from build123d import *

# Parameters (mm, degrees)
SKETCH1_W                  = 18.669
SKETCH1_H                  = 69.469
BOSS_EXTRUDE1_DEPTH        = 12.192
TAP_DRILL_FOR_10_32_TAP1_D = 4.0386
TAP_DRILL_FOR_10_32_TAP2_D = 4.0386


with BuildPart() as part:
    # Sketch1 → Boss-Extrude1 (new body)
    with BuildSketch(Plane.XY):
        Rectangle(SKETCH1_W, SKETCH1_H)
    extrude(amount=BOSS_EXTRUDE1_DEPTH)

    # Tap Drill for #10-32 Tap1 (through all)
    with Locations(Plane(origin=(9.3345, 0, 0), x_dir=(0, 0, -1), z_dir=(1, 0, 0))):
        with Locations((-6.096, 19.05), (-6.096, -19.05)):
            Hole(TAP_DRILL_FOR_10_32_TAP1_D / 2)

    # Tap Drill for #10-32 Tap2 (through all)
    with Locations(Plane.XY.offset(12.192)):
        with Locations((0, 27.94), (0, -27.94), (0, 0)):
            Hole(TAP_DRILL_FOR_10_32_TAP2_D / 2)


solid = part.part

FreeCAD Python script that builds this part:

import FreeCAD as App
import Part
import Sketcher
Q = App.Units.Quantity


def add_polygon(sketch, points):
    """Adds a closed chain of lines whose ends are joined by coincident constraints."""
    first, n = sketch.GeometryCount, len(points)
    for a, b in zip(points, points[1:] + points[:1]):
        sketch.addGeometry(Part.LineSegment(App.Vector(*a, 0), App.Vector(*b, 0)), False)
    for i in range(n):
        sketch.addConstraint(Sketcher.Constraint("Coincident", first + i, 2, first + (i + 1) % n, 1))

doc = App.newDocument("Part")
body = doc.addObject("PartDesign::Body", "Body")

# Sketch on XY plane
sketch1 = body.newObject("Sketcher::SketchObject", "Sketch")
sketch1.AttachmentSupport = (doc.getObject("XY_Plane"), [""])
sketch1.MapMode = "FlatFace"
add_polygon(sketch1, [(-9.3345, 34.7345), (-9.3345, -34.7345), (9.3345, -34.7345), (9.3345, 34.7345)])  # lines 0-3
sketch1.addConstraint([
    Sketcher.Constraint("Vertical", 0),
    Sketcher.Constraint("Horizontal", 1),
    Sketcher.Constraint("Vertical", 2),
    Sketcher.Constraint("Horizontal", 3),
    Sketcher.Constraint("Symmetric", 0, 2, 2, 2, -1, 1),
    Sketcher.Constraint("DistanceX", 1, 1, 1, 2, Q("0.735 in")),
    Sketcher.Constraint("DistanceY", 0, 2, 0, 1, Q("2.735 in")),
])
pad1 = body.newObject("PartDesign::Pad", "Pad")
pad1.Profile = sketch1
pad1.Length = Q("0.48 in")

# Sketch on YZ plane
sketch2 = body.newObject("Sketcher::SketchObject", "Sketch001")
sketch2.AttachmentSupport = (doc.getObject("YZ_Plane"), [""])
sketch2.MapMode = "FlatFace"
sketch2.AttachmentOffset = App.Placement(App.Vector(0, 0, 0.3675 * 25.4), App.Rotation())
sketch2.addGeometry([
    Part.Circle(App.Vector(19.05, 6.096, 0), App.Vector(0, 0, 1), 2.0193),
    Part.Circle(App.Vector(-19.05, 6.096, 0), App.Vector(0, 0, 1), 2.0193),
], False)
sketch2.addConstraint([
    Sketcher.Constraint("Equal", 0, 1),
    Sketcher.Constraint("Symmetric", 0, 3, 1, 3, -2),
    Sketcher.Constraint("Diameter", 0, Q("0.159 in")),
    Sketcher.Constraint("DistanceX", 1, 3, 0, 3, Q("1.5 in")),
    Sketcher.Constraint("DistanceY", -1, 1, 0, 3, Q("0.24 in")),
])
doc.recompute()
hole = body.newObject("PartDesign::Hole", "Hole")
hole.Profile = sketch2
hole.ThreadType = "None"
hole.Diameter = Q("0.159 in")
hole.DepthType = "ThroughAll"

# Sketch on XY plane
sketch3 = body.newObject("Sketcher::SketchObject", "Sketch002")
sketch3.AttachmentSupport = (doc.getObject("XY_Plane"), [""])
sketch3.MapMode = "FlatFace"
sketch3.AttachmentOffset = App.Placement(App.Vector(0, 0, 0.48 * 25.4), App.Rotation())
sketch3.addGeometry([
    Part.Circle(App.Vector(0, 27.94, 0), App.Vector(0, 0, 1), 2.0193),
    Part.Circle(App.Vector(0, -27.94, 0), App.Vector(0, 0, 1), 2.0193),
    Part.Circle(App.Vector(0, 0, 0), App.Vector(0, 0, 1), 2.0193),
], False)
sketch3.addConstraint([
    Sketcher.Constraint("Coincident", 2, 3, -1, 1),
    Sketcher.Constraint("Equal", 0, 1),
    Sketcher.Constraint("Equal", 1, 2),
    Sketcher.Constraint("Symmetric", 0, 3, 1, 3, -1, 1),
    Sketcher.Constraint("PointOnObject", 0, 3, -2),
    Sketcher.Constraint("Diameter", 0, Q("0.159 in")),
    Sketcher.Constraint("DistanceY", -1, 1, 0, 3, Q("1.1 in")),
])
doc.recompute()
hole2 = body.newObject("PartDesign::Hole", "Hole001")
hole2.Profile = sketch3
hole2.ThreadType = "None"
hole2.Diameter = Q("0.159 in")
hole2.DepthType = "ThroughAll"

doc.recompute()
